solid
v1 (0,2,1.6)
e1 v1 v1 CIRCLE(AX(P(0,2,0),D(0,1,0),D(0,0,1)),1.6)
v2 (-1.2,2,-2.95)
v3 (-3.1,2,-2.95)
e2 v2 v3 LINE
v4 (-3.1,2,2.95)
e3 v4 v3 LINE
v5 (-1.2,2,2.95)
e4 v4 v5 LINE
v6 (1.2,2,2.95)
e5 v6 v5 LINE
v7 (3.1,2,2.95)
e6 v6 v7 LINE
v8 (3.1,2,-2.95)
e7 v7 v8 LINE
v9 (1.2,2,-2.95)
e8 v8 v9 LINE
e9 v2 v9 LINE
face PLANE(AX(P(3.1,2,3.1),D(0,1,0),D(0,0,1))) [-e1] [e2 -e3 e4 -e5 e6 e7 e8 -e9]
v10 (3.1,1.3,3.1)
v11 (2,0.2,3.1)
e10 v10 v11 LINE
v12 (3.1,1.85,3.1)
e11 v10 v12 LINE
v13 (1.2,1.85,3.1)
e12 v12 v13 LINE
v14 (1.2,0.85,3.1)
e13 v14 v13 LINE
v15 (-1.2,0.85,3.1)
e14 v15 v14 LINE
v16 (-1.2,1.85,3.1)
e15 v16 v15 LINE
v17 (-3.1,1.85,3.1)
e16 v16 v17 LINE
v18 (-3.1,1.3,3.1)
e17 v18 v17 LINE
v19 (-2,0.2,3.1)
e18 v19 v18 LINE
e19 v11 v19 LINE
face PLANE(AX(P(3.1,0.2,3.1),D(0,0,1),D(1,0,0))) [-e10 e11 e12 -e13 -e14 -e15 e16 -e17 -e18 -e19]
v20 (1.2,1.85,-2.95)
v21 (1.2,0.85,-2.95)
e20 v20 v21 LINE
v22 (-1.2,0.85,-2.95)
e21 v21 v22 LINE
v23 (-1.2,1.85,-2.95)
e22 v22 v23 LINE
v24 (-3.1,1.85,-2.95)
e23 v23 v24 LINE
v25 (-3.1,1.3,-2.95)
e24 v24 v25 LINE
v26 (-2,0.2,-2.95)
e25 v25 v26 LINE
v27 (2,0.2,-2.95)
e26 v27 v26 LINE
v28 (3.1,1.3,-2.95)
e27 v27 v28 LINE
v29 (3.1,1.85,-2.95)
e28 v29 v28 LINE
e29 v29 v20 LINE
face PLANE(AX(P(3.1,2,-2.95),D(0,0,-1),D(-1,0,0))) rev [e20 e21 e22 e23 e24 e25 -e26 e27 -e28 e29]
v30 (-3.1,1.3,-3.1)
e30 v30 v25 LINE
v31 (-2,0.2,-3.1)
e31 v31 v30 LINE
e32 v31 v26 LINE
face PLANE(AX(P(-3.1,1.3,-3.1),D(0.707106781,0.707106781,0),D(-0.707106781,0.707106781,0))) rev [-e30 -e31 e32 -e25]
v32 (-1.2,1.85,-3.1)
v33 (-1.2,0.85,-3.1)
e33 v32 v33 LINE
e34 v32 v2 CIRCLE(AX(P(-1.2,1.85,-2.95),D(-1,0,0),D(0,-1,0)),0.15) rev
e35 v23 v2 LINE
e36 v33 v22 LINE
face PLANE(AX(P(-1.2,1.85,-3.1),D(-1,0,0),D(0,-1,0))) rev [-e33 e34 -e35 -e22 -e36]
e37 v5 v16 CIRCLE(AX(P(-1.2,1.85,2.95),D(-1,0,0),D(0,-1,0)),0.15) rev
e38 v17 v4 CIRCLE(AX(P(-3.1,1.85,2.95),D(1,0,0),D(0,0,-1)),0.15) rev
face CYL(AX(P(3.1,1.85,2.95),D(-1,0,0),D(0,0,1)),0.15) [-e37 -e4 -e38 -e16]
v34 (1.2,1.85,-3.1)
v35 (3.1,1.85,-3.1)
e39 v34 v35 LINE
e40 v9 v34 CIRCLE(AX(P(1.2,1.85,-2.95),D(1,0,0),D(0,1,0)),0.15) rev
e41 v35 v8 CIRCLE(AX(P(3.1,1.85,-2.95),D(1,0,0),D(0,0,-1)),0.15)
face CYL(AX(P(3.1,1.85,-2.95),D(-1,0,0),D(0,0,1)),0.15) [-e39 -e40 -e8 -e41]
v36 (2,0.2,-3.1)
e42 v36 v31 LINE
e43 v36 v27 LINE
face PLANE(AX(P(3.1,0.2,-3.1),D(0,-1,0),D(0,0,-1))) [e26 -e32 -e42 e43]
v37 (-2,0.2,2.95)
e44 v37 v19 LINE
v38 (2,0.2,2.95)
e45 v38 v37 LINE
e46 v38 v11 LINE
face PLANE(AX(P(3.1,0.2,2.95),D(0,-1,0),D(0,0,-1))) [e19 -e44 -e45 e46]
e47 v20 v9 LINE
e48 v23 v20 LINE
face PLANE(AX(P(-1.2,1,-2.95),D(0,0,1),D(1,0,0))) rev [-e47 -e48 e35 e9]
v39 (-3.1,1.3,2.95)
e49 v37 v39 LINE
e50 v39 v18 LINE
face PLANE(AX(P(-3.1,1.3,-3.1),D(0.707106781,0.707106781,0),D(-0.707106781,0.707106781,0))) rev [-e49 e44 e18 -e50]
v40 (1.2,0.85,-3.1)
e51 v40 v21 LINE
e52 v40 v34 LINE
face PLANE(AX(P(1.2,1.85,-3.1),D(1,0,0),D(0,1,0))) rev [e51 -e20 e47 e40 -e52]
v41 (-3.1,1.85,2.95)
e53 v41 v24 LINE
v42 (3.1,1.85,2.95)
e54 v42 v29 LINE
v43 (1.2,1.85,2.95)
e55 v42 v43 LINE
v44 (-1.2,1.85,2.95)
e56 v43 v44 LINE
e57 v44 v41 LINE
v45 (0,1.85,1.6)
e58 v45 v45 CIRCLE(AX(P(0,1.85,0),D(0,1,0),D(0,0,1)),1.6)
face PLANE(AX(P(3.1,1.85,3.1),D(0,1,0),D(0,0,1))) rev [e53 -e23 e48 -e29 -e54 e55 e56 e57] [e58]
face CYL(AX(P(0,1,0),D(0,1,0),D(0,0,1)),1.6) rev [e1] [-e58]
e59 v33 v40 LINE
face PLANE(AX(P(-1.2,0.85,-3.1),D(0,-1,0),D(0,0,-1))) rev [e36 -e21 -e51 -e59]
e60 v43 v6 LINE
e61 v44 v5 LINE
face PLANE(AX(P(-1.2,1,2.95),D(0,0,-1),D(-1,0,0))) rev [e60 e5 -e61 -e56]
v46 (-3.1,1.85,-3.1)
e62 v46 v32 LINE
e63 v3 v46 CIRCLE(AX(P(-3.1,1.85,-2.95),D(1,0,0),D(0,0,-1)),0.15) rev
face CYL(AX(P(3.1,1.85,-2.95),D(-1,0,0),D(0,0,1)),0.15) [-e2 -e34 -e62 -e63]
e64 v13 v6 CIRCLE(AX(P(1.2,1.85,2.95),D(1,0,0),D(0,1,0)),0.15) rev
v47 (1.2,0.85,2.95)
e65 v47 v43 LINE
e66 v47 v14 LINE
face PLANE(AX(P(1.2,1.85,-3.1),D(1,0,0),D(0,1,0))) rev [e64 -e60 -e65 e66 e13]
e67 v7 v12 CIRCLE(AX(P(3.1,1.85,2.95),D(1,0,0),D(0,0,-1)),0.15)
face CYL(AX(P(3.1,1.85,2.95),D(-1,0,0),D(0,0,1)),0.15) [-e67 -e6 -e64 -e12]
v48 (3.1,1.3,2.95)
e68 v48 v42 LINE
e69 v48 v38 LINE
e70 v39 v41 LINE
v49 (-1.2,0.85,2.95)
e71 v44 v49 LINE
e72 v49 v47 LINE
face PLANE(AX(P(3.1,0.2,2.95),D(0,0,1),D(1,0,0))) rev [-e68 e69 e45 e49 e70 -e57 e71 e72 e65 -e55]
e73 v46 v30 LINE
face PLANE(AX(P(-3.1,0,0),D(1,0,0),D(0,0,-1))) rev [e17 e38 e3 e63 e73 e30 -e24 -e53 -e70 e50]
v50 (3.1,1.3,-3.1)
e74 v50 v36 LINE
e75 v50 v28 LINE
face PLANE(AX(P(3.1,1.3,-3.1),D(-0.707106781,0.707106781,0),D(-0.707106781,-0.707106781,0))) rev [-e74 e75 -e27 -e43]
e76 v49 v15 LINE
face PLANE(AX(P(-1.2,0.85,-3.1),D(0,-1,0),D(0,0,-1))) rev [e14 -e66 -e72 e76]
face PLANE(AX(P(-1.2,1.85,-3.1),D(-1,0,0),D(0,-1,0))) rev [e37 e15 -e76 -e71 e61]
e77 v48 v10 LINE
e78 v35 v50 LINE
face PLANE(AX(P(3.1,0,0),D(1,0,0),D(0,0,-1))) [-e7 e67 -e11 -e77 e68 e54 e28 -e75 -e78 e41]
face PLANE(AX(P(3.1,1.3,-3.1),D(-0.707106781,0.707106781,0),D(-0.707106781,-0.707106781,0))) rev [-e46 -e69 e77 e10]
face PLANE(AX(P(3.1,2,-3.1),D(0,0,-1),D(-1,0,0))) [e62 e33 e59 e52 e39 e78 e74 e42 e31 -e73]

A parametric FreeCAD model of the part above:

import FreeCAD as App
import Part
import Sketcher

V = App.Vector
Q = App.Units.Quantity


def edges_at(feature, points):
    """Names of the edges that pass closest to the given points."""
    edges = feature.Shape.Edges
    near = lambda p: min(range(len(edges)), key=lambda i: edges[i].distToShape(Part.Vertex(*p))[0])
    return sorted({f"Edge{near(p) + 1}" for p in points})

doc = App.newDocument("Part")
body = doc.addObject("PartDesign::Body", "Body")

# Sketch on YZ plane
sketch1 = body.newObject("Sketcher::SketchObject", "Sketch")
sketch1.AttachmentSupport = (doc.getObject("YZ_Plane"), [""])
sketch1.MapMode = "FlatFace"
sketch1.addGeometry(Part.LineSegment(V(2, 3.1, 0), V(0.2, 3.1, 0)), False)
sketch1.addGeometry(Part.LineSegment(V(0.2, 3.1, 0), V(0.2, 2.95, 0)), False)
sketch1.addGeometry(Part.LineSegment(V(0.2, 2.95, 0), V(1.85, 2.95, 0)), False)
sketch1.addGeometry(Part.LineSegment(V(1.85, 2.95, 0), V(1.85, -2.95, 0)), False)
sketch1.addGeometry(Part.LineSegment(V(1.85, -2.95, 0), V(0.2, -2.95, 0)), False)
sketch1.addGeometry(Part.LineSegment(V(0.2, -2.95, 0), V(0.2, -3.1, 0)), False)
sketch1.addGeometry(Part.LineSegment(V(0.2, -3.1, 0), V(2, -3.1, 0)), False)
sketch1.addGeometry(Part.LineSegment(V(2, -3.1, 0), V(2, 3.1, 0)), False)
sketch1.addConstraint(Sketcher.Constraint("Coincident", 0, 2, 1, 1))
sketch1.addConstraint(Sketcher.Constraint("Coincident", 1, 2, 2, 1))
sketch1.addConstraint(Sketcher.Constraint("Coincident", 2, 2, 3, 1))
sketch1.addConstraint(Sketcher.Constraint("Coincident", 3, 2, 4, 1))
sketch1.addConstraint(Sketcher.Constraint("Coincident", 4, 2, 5, 1))
sketch1.addConstraint(Sketcher.Constraint("Coincident", 5, 2, 6, 1))
sketch1.addConstraint(Sketcher.Constraint("Coincident", 6, 2, 7, 1))
sketch1.addConstraint(Sketcher.Constraint("Coincident", 7, 2, 0, 1))
sketch1.addConstraint(Sketcher.Constraint("Horizontal", 0))
sketch1.addConstraint(Sketcher.Constraint("Vertical", 1))
sketch1.addConstraint(Sketcher.Constraint("Horizontal", 2))
sketch1.addConstraint(Sketcher.Constraint("Vertical", 3))
sketch1.addConstraint(Sketcher.Constraint("Horizontal", 4))
sketch1.addConstraint(Sketcher.Constraint("Vertical", 5))
sketch1.addConstraint(Sketcher.Constraint("Horizontal", 6))
sketch1.addConstraint(Sketcher.Constraint("Vertical", 7))
sketch1.addConstraint(Sketcher.Constraint("Symmetric", 1, 2, 4, 2, -1))
sketch1.addConstraint(Sketcher.Constraint("Equal", 1, 5))
sketch1.addConstraint(Sketcher.Constraint("DistanceX", 0, 2, 0, 1, Q("1.8 mm")))
sketch1.addConstraint(Sketcher.Constraint("DistanceY", 3, 2, 3, 1, Q("5.9 mm")))
sketch1.addConstraint(Sketcher.Constraint("DistanceY", 7, 1, 7, 2, Q("6.2 mm")))
sketch1.addConstraint(Sketcher.Constraint("DistanceX", -1, 1, 6, 2, Q("2 mm")))
sketch1.addConstraint(Sketcher.Constraint("DistanceX", 2, 1, 2, 2, Q("1.65 mm")))
pad1 = body.newObject("PartDesign::Pad", "Pad")
pad1.Profile = sketch1
pad1.Length = 6.2
pad1.Midplane = True

# Sketch on XY plane
sketch2 = body.newObject("Sketcher::SketchObject", "Sketch001")
sketch2.AttachmentSupport = (doc.getObject("XY_Plane"), [""])
sketch2.MapMode = "FlatFace"
sketch2.addGeometry(Part.LineSegment(V(-1.2, 1.9, 0), V(-1.2, 0.8, 0)), False)
sketch2.addGeometry(Part.LineSegment(V(-1.2, 0.8, 0), V(1.2, 0.8, 0)), False)
sketch2.addGeometry(Part.LineSegment(V(1.2, 0.8, 0), V(1.2, 1.9, 0)), False)
sketch2.addGeometry(Part.LineSegment(V(1.2, 1.9, 0), V(-1.2, 1.9, 0)), False)
sketch2.addGeometry(Part.LineSegment(V(-2, 0.2, 0), V(-3.1, 1.3, 0)), False)
sketch2.addGeometry(Part.LineSegment(V(-3.1, 1.3, 0), V(-3.1, 0.2, 0)), False)
sketch2.addGeometry(Part.LineSegment(V(-3.1, 0.2, 0), V(-2, 0.2, 0)), False)
sketch2.addGeometry(Part.LineSegment(V(3.1, 0.2, 0), V(3.1, 1.3, 0)), False)
sketch2.addGeometry(Part.LineSegment(V(3.1, 1.3, 0), V(2, 0.2, 0)), False)
sketch2.addGeometry(Part.LineSegment(V(2, 0.2, 0), V(3.1, 0.2, 0)), False)
sketch2.addConstraint(Sketcher.Constraint("Coincident", 0, 2, 1, 1))
sketch2.addConstraint(Sketcher.Constraint("Coincident", 1, 2, 2, 1))
sketch2.addConstraint(Sketcher.Constraint("Coincident", 2, 2, 3, 1))
sketch2.addConstraint(Sketcher.Constraint("Coincident", 3, 2, 0, 1))
sketch2.addConstraint(Sketcher.Constraint("Coincident", 4, 2, 5, 1))
sketch2.addConstraint(Sketcher.Constraint("Coincident", 5, 2, 6, 1))
sketch2.addConstraint(Sketcher.Constraint("Coincident", 6, 2, 4, 1))
sketch2.addConstraint(Sketcher.Constraint("Coincident", 7, 2, 8, 1))
sketch2.addConstraint(Sketcher.Constraint("Coincident", 8, 2, 9, 1))
sketch2.addConstraint(Sketcher.Constraint("Coincident", 9, 2, 7, 1))
sketch2.addConstraint(Sketcher.Constraint("Vertical", 0))
sketch2.addConstraint(Sketcher.Constraint("Horizontal", 1))
sketch2.addConstraint(Sketcher.Constraint("Vertical", 2))
sketch2.addConstraint(Sketcher.Constraint("Horizontal", 3))
sketch2.addConstraint(Sketcher.Constraint("Vertical", 5))
sketch2.addConstraint(Sketcher.Constraint("Horizontal", 6))
sketch2.addConstraint(Sketcher.Constraint("Vertical", 7))
sketch2.addConstraint(Sketcher.Constraint("Horizontal", 9))
sketch2.addConstraint(Sketcher.Constraint("Symmetric", 4, 2, 7, 2, -2))
sketch2.addConstraint(Sketcher.Constraint("Symmetric", 6, 2, 8, 2, -2))
sketch2.addConstraint(Sketcher.Constraint("Perpendicular", 4, 8))
sketch2.addConstraint(Sketcher.Constraint("DistanceY", 0, 2, 0, 1, Q("1 mm")))
sketch2.addConstraint(Sketcher.Constraint("DistanceX", 1, 1, 1, 2, Q("2.4 mm")))
sketch2.addConstraint(Sketcher.Constraint("DistanceX", 6, 1, 6, 2, Q("1.1 mm")))
sketch2.addConstraint(Sketcher.Constraint("DistanceX", 6, 2, -1, 1, Q("2 mm")))
sketch2.addConstraint(Sketcher.Constraint("DistanceX", 0, 2, -1, 1, Q("1.2 mm")))
sketch2.addConstraint(Sketcher.Constraint("DistanceY", -1, 1, 4, 2, Q("1.3 mm")))
sketch2.addConstraint(Sketcher.Constraint("DistanceY", -1, 1, 0, 2, Q("0.85 mm")))
pocket1 = body.newObject("PartDesign::Pocket", "Pocket")
pocket1.Profile = sketch2
pocket1.Type = "ThroughAll"
pocket1.Midplane = True

# Sketch on XZ plane
sketch3 = body.newObject("Sketcher::SketchObject", "Sketch002")
sketch3.AttachmentSupport = (doc.getObject("XZ_Plane"), [""])
sketch3.MapMode = "FlatFace"
sketch3.AttachmentOffset = App.Placement(V(0, 0, -2), App.Rotation())
sketch3.addGeometry(Part.LineSegment(V(-1.2, -3.1, 0), V(-1.2, -2.95, 0)), False)
sketch3.addGeometry(Part.LineSegment(V(-1.2, -2.95, 0), V(1.2, -2.95, 0)), False)
sketch3.addGeometry(Part.LineSegment(V(1.2, -2.95, 0), V(1.2, -3.1, 0)), False)
sketch3.addGeometry(Part.LineSegment(V(1.2, -3.1, 0), V(-1.2, -3.1, 0)), False)
sketch3.addGeometry(Part.LineSegment(V(-1.2, 2.95, 0), V(-1.2, 3.1, 0)), False)
sketch3.addGeometry(Part.LineSegment(V(-1.2, 3.1, 0), V(1.2, 3.1, 0)), False)
sketch3.addGeometry(Part.LineSegment(V(1.2, 3.1, 0), V(1.2, 2.95, 0)), False)
sketch3.addGeometry(Part.LineSegment(V(1.2, 2.95, 0), V(-1.2, 2.95, 0)), False)
sketch3.addConstraint(Sketcher.Constraint("Coincident", 0, 2, 1, 1))
sketch3.addConstraint(Sketcher.Constraint("Coincident", 1, 2, 2, 1))
sketch3.addConstraint(Sketcher.Constraint("Coincident", 2, 2, 3, 1))
sketch3.addConstraint(Sketcher.Constraint("Coincident", 3, 2, 0, 1))
sketch3.addConstraint(Sketcher.Constraint("Coincident", 4, 2, 5, 1))
sketch3.addConstraint(Sketcher.Constraint("Coincident", 5, 2, 6, 1))
sketch3.addConstraint(Sketcher.Constraint("Coincident", 6, 2, 7, 1))
sketch3.addConstraint(Sketcher.Constraint("Coincident", 7, 2, 4, 1))
sketch3.addConstraint(Sketcher.Constraint("Vertical", 0))
sketch3.addConstraint(Sketcher.Constraint("Horizontal", 1))
sketch3.addConstraint(Sketcher.Constraint("Vertical", 2))
sketch3.addConstraint(Sketcher.Constraint("Horizontal", 3))
sketch3.addConstraint(Sketcher.Constraint("Vertical", 4))
sketch3.addConstraint(Sketcher.Constraint("Horizontal", 5))
sketch3.addConstraint(Sketcher.Constraint("Vertical", 6))
sketch3.addConstraint(Sketcher.Constraint("Horizontal", 7))
sketch3.addConstraint(Sketcher.Constraint("Symmetric", 2, 2, 4, 2, -1, 1))
sketch3.addConstraint(Sketcher.Constraint("Symmetric", 0, 2, 6, 2, -1, 1))
sketch3.addConstraint(Sketcher.Constraint("Vertical", 3, 2, 4, 2))
sketch3.addConstraint(Sketcher.Constraint("DistanceX", 1, 1, 1, 2, Q("2.4 mm")))
sketch3.addConstraint(Sketcher.Constraint("DistanceY", 0, 1, 0, 2, Q("0.15 mm")))
sketch3.addConstraint(Sketcher.Constraint("DistanceY", 2, 2, -1, 1, Q("3.1 mm")))
pocket2 = body.newObject("PartDesign::Pocket", "Pocket001")
pocket2.Profile = sketch3
pocket2.Length = 1
pocket2.Reversed = True
doc.recompute()

fillet = body.newObject("PartDesign::Fillet", "Fillet")
fillet.Base = (pocket2, edges_at(pocket2, [
    (-2.15, 2, -3.1),
    (2.15, 2, -3.1),
    (-2.15, 2, 3.1),
    (2.15, 2, 3.1),
]))
fillet.Radius = 0.15

# Sketch on XZ plane
sketch4 = body.newObject("Sketcher::SketchObject", "Sketch003")
sketch4.AttachmentSupport = (doc.getObject("XZ_Plane"), [""])
sketch4.MapMode = "FlatFace"
sketch4.AttachmentOffset = App.Placement(V(0, 0, -2), App.Rotation())
sketch4.addGeometry(Part.Circle(V(0, 0, 0), V(0, 0, 1), 1.6), False)
sketch4.addConstraint(Sketcher.Constraint("Coincident", 0, 3, -1, 1))
sketch4.addConstraint(Sketcher.Constraint("Diameter", 0, Q("3.2 mm")))
pocket3 = body.newObject("PartDesign::Pocket", "Pocket002")
pocket3.Profile = sketch4
pocket3.Length = 1
pocket3.Reversed = True

doc.recompute()
